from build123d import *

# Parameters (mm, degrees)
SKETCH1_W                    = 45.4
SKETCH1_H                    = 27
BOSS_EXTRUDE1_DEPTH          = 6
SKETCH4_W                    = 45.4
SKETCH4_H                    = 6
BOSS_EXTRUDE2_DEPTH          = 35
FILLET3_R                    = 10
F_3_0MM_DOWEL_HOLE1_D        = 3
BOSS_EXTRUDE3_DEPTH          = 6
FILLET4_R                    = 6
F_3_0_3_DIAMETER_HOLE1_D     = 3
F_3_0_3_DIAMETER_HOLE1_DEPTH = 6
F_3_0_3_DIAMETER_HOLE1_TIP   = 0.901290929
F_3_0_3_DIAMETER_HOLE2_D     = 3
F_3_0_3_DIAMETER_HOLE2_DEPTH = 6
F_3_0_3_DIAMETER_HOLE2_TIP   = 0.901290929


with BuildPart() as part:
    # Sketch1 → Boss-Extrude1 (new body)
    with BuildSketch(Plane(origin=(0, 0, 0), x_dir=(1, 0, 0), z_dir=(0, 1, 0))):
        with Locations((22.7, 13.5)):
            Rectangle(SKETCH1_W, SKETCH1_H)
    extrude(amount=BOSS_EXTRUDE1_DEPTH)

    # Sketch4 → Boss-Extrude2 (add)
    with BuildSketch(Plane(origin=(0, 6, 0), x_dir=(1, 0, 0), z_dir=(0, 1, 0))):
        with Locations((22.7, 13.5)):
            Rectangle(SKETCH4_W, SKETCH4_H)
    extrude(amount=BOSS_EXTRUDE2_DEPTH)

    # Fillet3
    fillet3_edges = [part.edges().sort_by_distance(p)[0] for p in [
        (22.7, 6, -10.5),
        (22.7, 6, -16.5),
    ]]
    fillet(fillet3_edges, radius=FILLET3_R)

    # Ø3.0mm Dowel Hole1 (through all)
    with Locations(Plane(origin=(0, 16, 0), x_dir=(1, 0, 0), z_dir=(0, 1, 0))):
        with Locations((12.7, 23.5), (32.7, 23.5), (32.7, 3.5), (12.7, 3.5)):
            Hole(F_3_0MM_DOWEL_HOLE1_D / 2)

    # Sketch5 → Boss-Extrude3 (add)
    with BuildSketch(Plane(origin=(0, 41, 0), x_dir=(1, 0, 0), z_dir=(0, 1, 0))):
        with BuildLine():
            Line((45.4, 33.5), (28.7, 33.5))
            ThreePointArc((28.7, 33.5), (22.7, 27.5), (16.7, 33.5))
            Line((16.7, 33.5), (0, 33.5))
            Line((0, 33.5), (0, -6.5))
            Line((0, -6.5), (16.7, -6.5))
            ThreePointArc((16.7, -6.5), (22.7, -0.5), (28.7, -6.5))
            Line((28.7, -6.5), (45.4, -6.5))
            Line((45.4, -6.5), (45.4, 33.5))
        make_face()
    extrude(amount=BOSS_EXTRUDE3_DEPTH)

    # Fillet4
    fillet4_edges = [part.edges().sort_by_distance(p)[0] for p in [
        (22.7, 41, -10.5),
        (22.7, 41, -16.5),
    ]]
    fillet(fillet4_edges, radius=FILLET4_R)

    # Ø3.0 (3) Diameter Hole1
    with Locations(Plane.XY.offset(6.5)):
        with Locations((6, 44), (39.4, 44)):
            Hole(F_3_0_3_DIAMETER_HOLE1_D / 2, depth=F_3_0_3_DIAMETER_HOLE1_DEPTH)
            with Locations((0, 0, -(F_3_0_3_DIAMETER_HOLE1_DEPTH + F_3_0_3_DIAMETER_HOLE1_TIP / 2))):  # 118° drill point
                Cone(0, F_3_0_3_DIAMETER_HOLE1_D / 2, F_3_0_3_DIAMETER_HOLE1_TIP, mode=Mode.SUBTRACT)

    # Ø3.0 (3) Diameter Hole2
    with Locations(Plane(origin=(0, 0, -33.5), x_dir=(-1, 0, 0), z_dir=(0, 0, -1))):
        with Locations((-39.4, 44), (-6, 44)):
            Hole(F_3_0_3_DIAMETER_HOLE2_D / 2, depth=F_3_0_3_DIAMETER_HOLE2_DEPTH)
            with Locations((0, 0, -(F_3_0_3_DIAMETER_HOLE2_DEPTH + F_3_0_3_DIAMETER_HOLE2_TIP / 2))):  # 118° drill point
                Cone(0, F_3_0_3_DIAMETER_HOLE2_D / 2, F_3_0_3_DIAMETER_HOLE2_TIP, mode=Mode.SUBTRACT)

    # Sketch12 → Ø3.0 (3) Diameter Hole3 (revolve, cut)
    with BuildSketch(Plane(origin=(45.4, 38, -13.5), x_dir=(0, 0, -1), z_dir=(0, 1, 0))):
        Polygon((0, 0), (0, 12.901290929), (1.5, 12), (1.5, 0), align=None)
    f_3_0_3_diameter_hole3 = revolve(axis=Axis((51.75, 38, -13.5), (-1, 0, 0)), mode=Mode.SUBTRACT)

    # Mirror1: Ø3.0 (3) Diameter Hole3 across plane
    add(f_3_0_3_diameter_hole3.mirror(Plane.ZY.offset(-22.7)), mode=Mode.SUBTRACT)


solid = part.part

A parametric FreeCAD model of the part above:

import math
import FreeCAD as App
import Part
import Sketcher
from FreeCAD import Vector
Q = App.Units.Quantity


def edges_at(feature, points):
    """Names of the edges that pass closest to the given points."""
    edges = feature.Shape.Edges
    near = lambda p: min(range(len(edges)), key=lambda i: edges[i].distToShape(Part.Vertex(*p))[0])
    return sorted({f"Edge{near(p) + 1}" for p in points})

doc = App.newDocument("Part")
body = doc.addObject("PartDesign::Body", "Body")

# Sketch on XZ plane
sketch1 = body.newObject("Sketcher::SketchObject", "Sketch")
sketch1.AttachmentSupport = (doc.getObject("XZ_Plane"), [""])
sketch1.MapMode = "FlatFace"
sketch1.addGeometry([
    Part.LineSegment(Vector(0, -27, 0), Vector(0, 0, 0)),
    Part.LineSegment(Vector(0, 0, 0), Vector(45, 0, 0)),
    Part.LineSegment(Vector(45, 0, 0), Vector(45, -27, 0)),
    Part.LineSegment(Vector(45, -27, 0), Vector(0, -27, 0)),
], False)
sketch1.addConstraint([
    Sketcher.Constraint("Coincident", 0, 2, 1, 1),
    Sketcher.Constraint("Coincident", 1, 2, 2, 1),
    Sketcher.Constraint("Coincident", 2, 2, 3, 1),
    Sketcher.Constraint("Coincident", 3, 2, 0, 1),
    Sketcher.Constraint("Vertical", 0),
    Sketcher.Constraint("Horizontal", 1),
    Sketcher.Constraint("Vertical", 2),
    Sketcher.Constraint("Horizontal", 3),
    Sketcher.Constraint("Coincident", 0, 2, -1, 1),
    Sketcher.Constraint("DistanceY", 0, 1, 0, 2, 27.0),
    Sketcher.Constraint("DistanceX", 1, 1, 1, 2, 45.4),
])
pad1 = body.newObject("PartDesign::Pad", "Pad")
pad1.Profile = sketch1
pad1.Length = 6
pad1.Reversed = True

# Sketch on XZ plane
sketch2 = body.newObject("Sketcher::SketchObject", "Sketch001")
sketch2.AttachmentSupport = (doc.getObject("XZ_Plane"), [""])
sketch2.MapMode = "FlatFace"
sketch2.AttachmentOffset = App.Placement(Vector(0, 0, -6), App.Rotation())
sketch2.addGeometry([
    Part.LineSegment(Vector(0, -16, 0), Vector(0, -10, 0)),
    Part.LineSegment(Vector(0, -10, 0), Vector(45, -10, 0)),
    Part.LineSegment(Vector(45, -10, 0), Vector(45, -16, 0)),
    Part.LineSegment(Vector(45, -16, 0), Vector(0, -16, 0)),
], False)
sketch2.addConstraint([
    Sketcher.Constraint("Coincident", 0, 2, 1, 1),
    Sketcher.Constraint("Coincident", 1, 2, 2, 1),
    Sketcher.Constraint("Coincident", 2, 2, 3, 1),
    Sketcher.Constraint("Coincident", 3, 2, 0, 1),
    Sketcher.Constraint("Vertical", 0),
    Sketcher.Constraint("Horizontal", 1),
    Sketcher.Constraint("Vertical", 2),
    Sketcher.Constraint("Horizontal", 3),
    Sketcher.Constraint("PointOnObject", 0, 2, -2),
    Sketcher.Constraint("DistanceY", 0, 1, 0, 2, 6.0),
    Sketcher.Constraint("DistanceX", 1, 1, 1, 2, 45.4),
    Sketcher.Constraint("DistanceY", 0, 2, -1, 1, 10.5),
])
pad2 = body.newObject("PartDesign::Pad", "Pad001")
pad2.Profile = sketch2
pad2.Length = 35
pad2.Reversed = True
doc.recompute()

fillet = body.newObject("PartDesign::Fillet", "Fillet")
fillet.Base = (pad2, edges_at(pad2, [(22.7, 6, -10.5), (22.7, 6, -16.5)]))
fillet.Radius = 10

# Sketch on XZ plane
sketch3 = body.newObject("Sketcher::SketchObject", "Sketch002")
sketch3.AttachmentSupport = (doc.getObject("XZ_Plane"), [""])
sketch3.MapMode = "FlatFace"
sketch3.AttachmentOffset = App.Placement(Vector(0, 0, -16), App.Rotation())
sketch3.addGeometry([
    Part.Circle(Vector(12.7, -23.5, 0), Vector(0, 0, 1), 1.5),
    Part.Circle(Vector(32.7, -23.5, 0), Vector(0, 0, 1), 1.5),
    Part.Circle(Vector(32.7, -3.5, 0), Vector(0, 0, 1), 1.5),
    Part.Circle(Vector(12.7, -3.5, 0), Vector(0, 0, 1), 1.5),
], False)
sketch3.addConstraint([
    Sketcher.Constraint("Equal", 0, 1),
    Sketcher.Constraint("Equal", 1, 2),
    Sketcher.Constraint("Equal", 2, 3),
    Sketcher.Constraint("Horizontal", 0, 3, 1, 3),
    Sketcher.Constraint("Horizontal", 2, 3, 3, 3),
    Sketcher.Constraint("Vertical", 1, 3, 2, 3),
    Sketcher.Constraint("Vertical", 0, 3, 3, 3),
    Sketcher.Constraint("Diameter", 0, 3.0),
    Sketcher.Constraint("DistanceX", 0, 3, 1, 3, 20.0),
    Sketcher.Constraint("DistanceY", 1, 3, 2, 3, 20.0),
    Sketcher.Constraint("DistanceX", -1, 1, 0, 3, 12.7),
    Sketcher.Constraint("DistanceY", 0, 3, -1, 1, 23.5),
])
doc.recompute()
hole = body.newObject("PartDesign::Hole", "Hole")
hole.Profile = sketch3
hole.ThreadType = "None"
hole.Diameter = 3
hole.DepthType = "ThroughAll"
hole.Reversed = True

# Sketch on XZ plane
sketch4 = body.newObject("Sketcher::SketchObject", "Sketch003")
sketch4.AttachmentSupport = (doc.getObject("XZ_Plane"), [""])
sketch4.MapMode = "FlatFace"
sketch4.AttachmentOffset = App.Placement(Vector(0, 0, -41), App.Rotation())
sketch4.addGeometry([
    Part.LineSegment(Vector(45, -34, 0), Vector(29, -34, 0)),  # 0
    Part.ArcOfCircle(Part.Circle(Vector(23, -34, 0), Vector(0, 0, 1), 6), math.radians(0), math.radians(180)),  # 1
    Part.LineSegment(Vector(17, -34, 0), Vector(0, -34, 0)),  # 2
    Part.LineSegment(Vector(0, -34, 0), Vector(0, 6, 0)),  # 3
    Part.LineSegment(Vector(0, 6, 0), Vector(17, 6, 0)),  # 4
    Part.ArcOfCircle(Part.Circle(Vector(23, 6, 0), Vector(0, 0, 1), 6), math.radians(180), math.radians(360)),  # 5
    Part.LineSegment(Vector(29, 6, 0), Vector(45, 6, 0)),  # 6
    Part.LineSegment(Vector(45, 6, 0), Vector(45, -34, 0)),  # 7
], False)
sketch4.addConstraint([
    Sketcher.Constraint("Coincident", 0, 2, 1, 1),
    Sketcher.Constraint("Coincident", 1, 2, 2, 1),
    Sketcher.Constraint("Coincident", 2, 2, 3, 1),
    Sketcher.Constraint("Coincident", 3, 2, 4, 1),
    Sketcher.Constraint("Coincident", 4, 2, 5, 1),
    Sketcher.Constraint("Coincident", 5, 2, 6, 1),
    Sketcher.Constraint("Coincident", 6, 2, 7, 1),
    Sketcher.Constraint("Coincident", 7, 2, 0, 1),
    Sketcher.Constraint("Horizontal", 0),
    Sketcher.Constraint("Horizontal", 2),
    Sketcher.Constraint("Vertical", 3),
    Sketcher.Constraint("Horizontal", 4),
    Sketcher.Constraint("Horizontal", 6),
    Sketcher.Constraint("Vertical", 7),
    Sketcher.Constraint("Equal", 1, 5),
    Sketcher.Constraint("PointOnObject", 2, 2, -2),
    Sketcher.Constraint("Horizontal", 1, 3, 0, 2),
    Sketcher.Constraint("Horizontal", 0, 2, 1, 2),
    Sketcher.Constraint("Horizontal", 5, 3, 3, 2),
    Sketcher.Constraint("Horizontal", 4, 2, 5, 2),
    Sketcher.Constraint("Vertical", 1, 3, 5, 3),
    Sketcher.Constraint("Equal", 0, 2),
    Sketcher.Constraint("Radius", 1, 6.0),
    Sketcher.Constraint("DistanceY", 3, 1, 3, 2, 40.0),
    Sketcher.Constraint("DistanceX", 0, 2, 0, 1, 16.7),
    Sketcher.Constraint("DistanceY", 1, 3, -1, 1, 33.5),
])
pad3 = body.newObject("PartDesign::Pad", "Pad002")
pad3.Profile = sketch4
pad3.Length = 6
pad3.Reversed = True
doc.recompute()

fillet2 = body.newObject("PartDesign::Fillet", "Fillet001")
fillet2.Base = (pad3, edges_at(pad3, [(22.7, 41, -10.5), (22.7, 41, -16.5)]))
fillet2.Radius = 6

# Sketch on XY plane
sketch5 = body.newObject("Sketcher::SketchObject", "Sketch004")
sketch5.AttachmentSupport = (doc.getObject("XY_Plane"), [""])
sketch5.MapMode = "FlatFace"
sketch5.AttachmentOffset = App.Placement(Vector(0, 0, 6.5), App.Rotation())
sketch5.addGeometry([
    Part.Circle(Vector(6, 44, 0), Vector(0, 0, 1), 1.5),
    Part.Circle(Vector(39.4, 44, 0), Vector(0, 0, 1), 1.5),
], False)
sketch5.addConstraint([
    Sketcher.Constraint("Equal", 0, 1),
    Sketcher.Constraint("Horizontal", 0, 3, 1, 3),
    Sketcher.Constraint("Diameter", 0, 3.0),
    Sketcher.Constraint("DistanceX", -1, 1, 0, 3, 6.0),
    Sketcher.Constraint("DistanceY", -1, 1, 0, 3, 44.0),
    Sketcher.Constraint("DistanceX", -1, 1, 1, 3, 39.4),
])
doc.recompute()
hole2 = body.newObject("PartDesign::Hole", "Hole001")
hole2.Profile = sketch5
hole2.ThreadType = "None"
hole2.Diameter = 3
hole2.DepthType = "Dimension"
hole2.Depth = 6
hole2.DrillPoint = "Angled"
hole2.DrillPointAngle = 118

# Sketch on XY plane
sketch6 = body.newObject("Sketcher::SketchObject", "Sketch005")
sketch6.AttachmentSupport = (doc.getObject("XY_Plane"), [""])
sketch6.MapMode = "FlatFace"
sketch6.AttachmentOffset = App.Placement(Vector(0, 0, -33.5), App.Rotation())
sketch6.addGeometry([
    Part.Circle(Vector(39.4, 44, 0), Vector(0, 0, 1), 1.5),
    Part.Circle(Vector(6, 44, 0), Vector(0, 0, 1), 1.5),
], False)
sketch6.addConstraint([
    Sketcher.Constraint("Equal", 0, 1),
    Sketcher.Constraint("Horizontal", 0, 3, 1, 3),
    Sketcher.Constraint("Diameter", 0, 3.0),
    Sketcher.Constraint("DistanceY", -1, 1, 0, 3, 44.0),
    Sketcher.Constraint("DistanceX", -1, 1, 1, 3, 6.0),
    Sketcher.Constraint("DistanceX", -1, 1, 0, 3, 39.4),
])
doc.recompute()
hole3 = body.newObject("PartDesign::Hole", "Hole002")
hole3.Profile = sketch6
hole3.ThreadType = "None"
hole3.Diameter = 3
hole3.DepthType = "Dimension"
hole3.Depth = 6
hole3.DrillPoint = "Angled"
hole3.DrillPointAngle = 118
hole3.Reversed = True

# Sketch on XZ plane
sketch7 = body.newObject("Sketcher::SketchObject", "Sketch006")
sketch7.AttachmentSupport = (doc.getObject("XZ_Plane"), [""])
sketch7.MapMode = "FlatFace"
sketch7.AttachmentOffset = App.Placement(Vector(0, 0, -38), App.Rotation())
sketch7.addGeometry([
    Part.LineSegment(Vector(32.5, -13.5, 0), Vector(45.4, -13.5, 0)),
    Part.LineSegment(Vector(45.4, -13.5, 0), Vector(45.4, -15, 0)),
    Part.LineSegment(Vector(45.4, -15, 0), Vector(33.4, -15, 0)),
    Part.LineSegment(Vector(33.4, -15, 0), Vector(32.5, -13.5, 0)),
], False)
sketch7.addGeometry(Part.LineSegment(Vector(45.4, -13.5, 0), Vector(32.5, -13.5, 0)), True)  # axis
sketch7.addConstraint([
    Sketcher.Constraint("Coincident", 0, 2, 1, 1),
    Sketcher.Constraint("Coincident", 1, 2, 2, 1),
    Sketcher.Constraint("Coincident", 2, 2, 3, 1),
    Sketcher.Constraint("Coincident", 3, 2, 0, 1),
    Sketcher.Constraint("Horizontal", 0),
    Sketcher.Constraint("Vertical", 1),
    Sketcher.Constraint("Horizontal", 2),
    Sketcher.Constraint("Horizontal", 4),
    Sketcher.Constraint("Coincident", 4, 1, 0, 2),
    Sketcher.Constraint("Equal", 0, 4),
    Sketcher.Constraint("DistanceX", 2, 2, 2, 1, 12.0),
    Sketcher.Constraint("Angle", 3, Q("121 deg")),
    Sketcher.Constraint("DistanceY", 1, 2, 1, 1, 1.5),
    Sketcher.Constraint("DistanceY", 1, 2, -1, 1, 15.0),
    Sketcher.Constraint("DistanceX", -1, 1, 0, 2, 45.4),
])
groove = body.newObject("PartDesign::Groove", "Groove")
groove.Profile = sketch7
groove.ReferenceAxis = (sketch7, ["Axis0"])
groove.Angle = 360
doc.recompute()

datumplane = body.newObject("PartDesign::Plane", "DatumPlane")
datumplane.AttachmentSupport = (doc.getObject("YZ_Plane"), [""])
datumplane.MapMode = "FlatFace"
datumplane.AttachmentOffset = App.Placement(Vector(0, 0, 22.7), App.Rotation())
mirrored = body.newObject("PartDesign::Mirrored", "Mirrored")
mirrored.Originals = [groove]
mirrored.MirrorPlane = (datumplane, [""])
body.Tip = mirrored

doc.recompute()
